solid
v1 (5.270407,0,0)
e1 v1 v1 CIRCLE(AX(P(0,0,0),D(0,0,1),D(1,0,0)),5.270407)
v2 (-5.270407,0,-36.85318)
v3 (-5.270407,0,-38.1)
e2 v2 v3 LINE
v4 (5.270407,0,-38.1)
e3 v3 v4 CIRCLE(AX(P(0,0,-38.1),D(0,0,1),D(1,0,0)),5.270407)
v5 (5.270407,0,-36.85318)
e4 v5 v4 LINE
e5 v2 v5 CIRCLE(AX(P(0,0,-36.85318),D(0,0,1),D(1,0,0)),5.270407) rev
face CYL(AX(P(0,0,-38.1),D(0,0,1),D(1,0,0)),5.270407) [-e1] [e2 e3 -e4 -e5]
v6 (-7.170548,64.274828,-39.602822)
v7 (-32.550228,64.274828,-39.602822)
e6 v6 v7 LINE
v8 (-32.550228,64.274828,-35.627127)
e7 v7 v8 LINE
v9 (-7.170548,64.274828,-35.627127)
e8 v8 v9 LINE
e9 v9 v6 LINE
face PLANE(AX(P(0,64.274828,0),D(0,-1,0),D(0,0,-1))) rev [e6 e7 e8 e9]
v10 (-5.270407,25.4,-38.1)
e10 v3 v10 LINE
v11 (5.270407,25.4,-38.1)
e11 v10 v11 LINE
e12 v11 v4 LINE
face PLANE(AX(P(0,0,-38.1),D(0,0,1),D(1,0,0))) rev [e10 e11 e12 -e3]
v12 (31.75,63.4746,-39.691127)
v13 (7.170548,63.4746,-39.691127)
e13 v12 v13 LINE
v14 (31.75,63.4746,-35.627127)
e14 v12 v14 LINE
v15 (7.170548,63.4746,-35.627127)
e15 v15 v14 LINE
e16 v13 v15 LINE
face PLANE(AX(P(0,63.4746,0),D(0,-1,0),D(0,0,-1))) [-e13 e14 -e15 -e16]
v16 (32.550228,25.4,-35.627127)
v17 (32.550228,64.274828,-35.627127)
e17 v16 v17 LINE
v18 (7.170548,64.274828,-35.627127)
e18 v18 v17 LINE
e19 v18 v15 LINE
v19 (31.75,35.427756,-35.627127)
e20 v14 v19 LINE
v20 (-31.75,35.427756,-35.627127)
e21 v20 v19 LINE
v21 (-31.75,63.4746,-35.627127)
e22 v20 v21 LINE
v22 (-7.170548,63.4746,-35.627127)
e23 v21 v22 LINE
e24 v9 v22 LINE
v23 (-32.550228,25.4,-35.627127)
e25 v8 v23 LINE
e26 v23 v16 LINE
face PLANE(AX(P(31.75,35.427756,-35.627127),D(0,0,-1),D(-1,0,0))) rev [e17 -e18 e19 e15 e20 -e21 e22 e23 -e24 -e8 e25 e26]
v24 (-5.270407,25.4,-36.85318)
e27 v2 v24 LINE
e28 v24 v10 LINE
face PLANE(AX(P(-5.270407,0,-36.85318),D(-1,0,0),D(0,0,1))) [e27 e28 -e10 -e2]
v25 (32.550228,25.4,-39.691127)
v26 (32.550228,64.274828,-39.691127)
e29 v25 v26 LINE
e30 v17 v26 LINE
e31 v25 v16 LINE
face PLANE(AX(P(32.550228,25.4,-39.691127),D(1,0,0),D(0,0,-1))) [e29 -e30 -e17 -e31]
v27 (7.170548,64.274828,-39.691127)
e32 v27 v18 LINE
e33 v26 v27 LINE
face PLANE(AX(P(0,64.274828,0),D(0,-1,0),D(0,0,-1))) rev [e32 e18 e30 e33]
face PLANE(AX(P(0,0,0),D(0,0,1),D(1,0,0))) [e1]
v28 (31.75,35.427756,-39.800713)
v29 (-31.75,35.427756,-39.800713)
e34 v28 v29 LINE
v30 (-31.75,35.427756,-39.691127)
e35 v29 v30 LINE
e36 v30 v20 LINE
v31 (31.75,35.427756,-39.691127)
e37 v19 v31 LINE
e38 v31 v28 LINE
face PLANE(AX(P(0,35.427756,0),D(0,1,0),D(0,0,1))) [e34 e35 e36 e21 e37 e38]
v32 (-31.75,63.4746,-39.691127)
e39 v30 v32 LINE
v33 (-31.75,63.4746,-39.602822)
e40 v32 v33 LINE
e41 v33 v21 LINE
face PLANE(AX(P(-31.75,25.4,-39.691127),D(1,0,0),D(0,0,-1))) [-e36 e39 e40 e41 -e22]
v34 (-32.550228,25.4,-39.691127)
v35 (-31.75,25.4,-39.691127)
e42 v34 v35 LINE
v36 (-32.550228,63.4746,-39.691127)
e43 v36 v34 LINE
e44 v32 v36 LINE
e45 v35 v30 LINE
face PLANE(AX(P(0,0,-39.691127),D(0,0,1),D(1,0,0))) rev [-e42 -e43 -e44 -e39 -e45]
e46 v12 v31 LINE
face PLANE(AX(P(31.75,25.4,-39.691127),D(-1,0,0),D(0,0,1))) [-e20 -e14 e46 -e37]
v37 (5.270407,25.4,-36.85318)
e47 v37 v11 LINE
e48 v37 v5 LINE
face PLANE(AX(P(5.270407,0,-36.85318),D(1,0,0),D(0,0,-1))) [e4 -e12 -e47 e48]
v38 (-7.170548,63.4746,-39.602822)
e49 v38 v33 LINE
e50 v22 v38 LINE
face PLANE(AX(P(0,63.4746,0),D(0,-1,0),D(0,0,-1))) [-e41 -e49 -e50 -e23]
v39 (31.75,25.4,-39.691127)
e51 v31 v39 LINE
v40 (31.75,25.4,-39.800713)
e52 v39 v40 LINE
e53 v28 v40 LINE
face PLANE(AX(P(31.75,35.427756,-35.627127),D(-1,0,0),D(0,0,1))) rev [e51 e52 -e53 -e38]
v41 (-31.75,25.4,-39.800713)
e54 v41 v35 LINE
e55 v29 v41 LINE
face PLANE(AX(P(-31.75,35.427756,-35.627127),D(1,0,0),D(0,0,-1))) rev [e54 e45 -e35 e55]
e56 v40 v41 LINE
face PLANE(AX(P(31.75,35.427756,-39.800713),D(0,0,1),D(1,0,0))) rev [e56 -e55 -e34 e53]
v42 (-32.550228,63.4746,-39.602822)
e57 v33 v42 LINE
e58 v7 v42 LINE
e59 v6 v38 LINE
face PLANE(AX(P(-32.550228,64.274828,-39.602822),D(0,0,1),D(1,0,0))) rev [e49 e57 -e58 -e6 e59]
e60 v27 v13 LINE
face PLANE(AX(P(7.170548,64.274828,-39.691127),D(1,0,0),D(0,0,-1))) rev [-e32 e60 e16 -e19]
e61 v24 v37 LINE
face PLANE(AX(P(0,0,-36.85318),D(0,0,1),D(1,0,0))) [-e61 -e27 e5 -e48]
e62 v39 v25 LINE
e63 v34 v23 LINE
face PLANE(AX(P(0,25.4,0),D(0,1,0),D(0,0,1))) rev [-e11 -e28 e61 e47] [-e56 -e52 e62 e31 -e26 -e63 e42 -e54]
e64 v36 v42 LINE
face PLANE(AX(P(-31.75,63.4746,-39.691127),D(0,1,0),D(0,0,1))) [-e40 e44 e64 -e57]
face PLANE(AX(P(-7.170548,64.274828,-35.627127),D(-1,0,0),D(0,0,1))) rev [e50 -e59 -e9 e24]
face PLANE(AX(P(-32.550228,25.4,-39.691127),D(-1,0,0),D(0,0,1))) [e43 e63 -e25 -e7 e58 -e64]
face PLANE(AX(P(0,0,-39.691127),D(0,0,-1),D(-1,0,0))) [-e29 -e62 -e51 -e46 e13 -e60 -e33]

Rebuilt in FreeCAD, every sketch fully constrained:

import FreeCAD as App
import Part
import Sketcher
from FreeCAD import Vector
Q = App.Units.Quantity

doc = App.newDocument("Part")
body = doc.addObject("PartDesign::Body", "Body")

sketch1 = doc.addObject("Sketcher::SketchObject", "Sketch")
body.addObject(sketch1)
sketch1.AttachmentSupport = (doc.XY_Plane, [""])
sketch1.MapMode = "FlatFace"
sketch1.addGeometry(Part.Circle(Vector(0, 0, 0), Vector(0, 0, 1), 5.270407), False)
sketch1.addConstraint(Sketcher.Constraint("Coincident", 0, 3, -1, 1))
sketch1.addConstraint(Sketcher.Constraint("Diameter", 0, 10.540815))
pad1 = doc.addObject("PartDesign::Pad", "Pad")
body.addObject(pad1)
pad1.Profile = sketch1
pad1.Length = Q("1.5 in")
pad1.Reversed = True

sketch2 = doc.addObject("Sketcher::SketchObject", "Sketch001")
body.addObject(sketch2)
sketch2.AttachmentSupport = (doc.XY_Plane, [""])
sketch2.MapMode = "FlatFace"
sketch2.AttachmentOffset = App.Placement(Vector(0, 0, -1.5 * 25.4), App.Rotation())
sketch2.addGeometry(Part.LineSegment(Vector(5.270407, 25.4, 0), Vector(5.270407, 0, 0)), False)
sketch2.addGeometry(Part.LineSegment(Vector(5.270407, 0, 0), Vector(-5.270407, 0, 0)), False)
sketch2.addGeometry(Part.LineSegment(Vector(-5.270407, 0, 0), Vector(-5.270407, 25.4, 0)), False)
sketch2.addGeometry(Part.LineSegment(Vector(-5.270407, 25.4, 0), Vector(5.270407, 25.4, 0)), False)
sketch2.addConstraint(Sketcher.Constraint("Coincident", 0, 2, 1, 1))
sketch2.addConstraint(Sketcher.Constraint("Coincident", 1, 2, 2, 1))
sketch2.addConstraint(Sketcher.Constraint("Coincident", 2, 2, 3, 1))
sketch2.addConstraint(Sketcher.Constraint("Coincident", 3, 2, 0, 1))
sketch2.addConstraint(Sketcher.Constraint("Vertical", 0))
sketch2.addConstraint(Sketcher.Constraint("Horizontal", 1))
sketch2.addConstraint(Sketcher.Constraint("Vertical", 2))
sketch2.addConstraint(Sketcher.Constraint("Horizontal", 3))
sketch2.addConstraint(Sketcher.Constraint("Symmetric", 0, 2, 1, 2, -1, 1))
sketch2.addConstraint(Sketcher.Constraint("DistanceY", 0, 2, 0, 1, Q("1 in")))
sketch2.addConstraint(Sketcher.Constraint("DistanceX", 1, 2, 1, 1, 10.540815))
pad2 = doc.addObject("PartDesign::Pad", "Pad001")
body.addObject(pad2)
pad2.Profile = sketch2
pad2.Length = 1.24682

sketch3 = doc.addObject("Sketcher::SketchObject", "Sketch002")
body.addObject(sketch3)
sketch3.AttachmentSupport = (doc.XZ_Plane, [""])
sketch3.MapMode = "FlatFace"
sketch3.AttachmentOffset = App.Placement(Vector(0, 0, -1 * 25.4), App.Rotation())
sketch3.addGeometry(Part.LineSegment(Vector(-31.75, -39.800713, 0), Vector(-31.75, -35.627127, 0)), False)
sketch3.addGeometry(Part.LineSegment(Vector(-31.75, -35.627127, 0), Vector(31.75, -35.627127, 0)), False)
sketch3.addGeometry(Part.LineSegment(Vector(31.75, -35.627127, 0), Vector(31.75, -39.800713, 0)), False)
sketch3.addGeometry(Part.LineSegment(Vector(31.75, -39.800713, 0), Vector(-31.75, -39.800713, 0)), False)
sketch3.addConstraint(Sketcher.Constraint("Coincident", 0, 2, 1, 1))
sketch3.addConstraint(Sketcher.Constraint("Coincident", 1, 2, 2, 1))
sketch3.addConstraint(Sketcher.Constraint("Coincident", 2, 2, 3, 1))
sketch3.addConstraint(Sketcher.Constraint("Coincident", 3, 2, 0, 1))
sketch3.addConstraint(Sketcher.Constraint("Vertical", 0))
sketch3.addConstraint(Sketcher.Constraint("Horizontal", 1))
sketch3.addConstraint(Sketcher.Constraint("Vertical", 2))
sketch3.addConstraint(Sketcher.Constraint("Horizontal", 3))
sketch3.addConstraint(Sketcher.Constraint("DistanceX", 1, 1, 1, 2, Q("2.5 in")))
sketch3.addConstraint(Sketcher.Constraint("DistanceX", 0, 2, -1, 1, Q("1.25 in")))
sketch3.addConstraint(Sketcher.Constraint("DistanceY", 0, 1, 0, 2, 4.173586))
sketch3.addConstraint(Sketcher.Constraint("DistanceY", 0, 2, -1, 1, 35.627127))
pad3 = doc.addObject("PartDesign::Pad", "Pad002")
body.addObject(pad3)
pad3.Profile = sketch3
pad3.Length = 10.027756
pad3.Reversed = True

sketch4 = doc.addObject("Sketcher::SketchObject", "Sketch003")
body.addObject(sketch4)
sketch4.AttachmentSupport = (doc.XY_Plane, [""])
sketch4.MapMode = "FlatFace"
sketch4.AttachmentOffset = App.Placement(Vector(0, 0, -35.627127), App.Rotation())
sketch4.addGeometry(Part.LineSegment(Vector(-32.550228, 63.4746, 0), Vector(-32.550228, 25.4, 0)), False)
sketch4.addGeometry(Part.LineSegment(Vector(-32.550228, 25.4, 0), Vector(-31.75, 25.4, 0)), False)
sketch4.addGeometry(Part.LineSegment(Vector(-31.75, 25.4, 0), Vector(-31.75, 63.4746, 0)), False)
sketch4.addGeometry(Part.LineSegment(Vector(-31.75, 63.4746, 0), Vector(-32.550228, 63.4746, 0)), False)
sketch4.addGeometry(Part.LineSegment(Vector(31.75, 63.4746, 0), Vector(31.75, 25.4, 0)), False)
sketch4.addGeometry(Part.LineSegment(Vector(31.75, 25.4, 0), Vector(32.550228, 25.4, 0)), False)
sketch4.addGeometry(Part.LineSegment(Vector(32.550228, 25.4, 0), Vector(32.550228, 63.4746, 0)), False)
sketch4.addGeometry(Part.LineSegment(Vector(32.550228, 63.4746, 0), Vector(31.75, 63.4746, 0)), False)
sketch4.addConstraint(Sketcher.Constraint("Coincident", 0, 2, 1, 1))
sketch4.addConstraint(Sketcher.Constraint("Coincident", 1, 2, 2, 1))
sketch4.addConstraint(Sketcher.Constraint("Coincident", 2, 2, 3, 1))
sketch4.addConstraint(Sketcher.Constraint("Coincident", 3, 2, 0, 1))
sketch4.addConstraint(Sketcher.Constraint("Coincident", 4, 2, 5, 1))
sketch4.addConstraint(Sketcher.Constraint("Coincident", 5, 2, 6, 1))
sketch4.addConstraint(Sketcher.Constraint("Coincident", 6, 2, 7, 1))
sketch4.addConstraint(Sketcher.Constraint("Coincident", 7, 2, 4, 1))
sketch4.addConstraint(Sketcher.Constraint("Vertical", 0))
sketch4.addConstraint(Sketcher.Constraint("Horizontal", 1))
sketch4.addConstraint(Sketcher.Constraint("Vertical", 2))
sketch4.addConstraint(Sketcher.Constraint("Horizontal", 3))
sketch4.addConstraint(Sketcher.Constraint("Vertical", 4))
sketch4.addConstraint(Sketcher.Constraint("Horizontal", 5))
sketch4.addConstraint(Sketcher.Constraint("Vertical", 6))
sketch4.addConstraint(Sketcher.Constraint("Horizontal", 7))
sketch4.addConstraint(Sketcher.Constraint("Symmetric", 1, 2, 4, 2, -2))
sketch4.addConstraint(Sketcher.Constraint("Symmetric", 3, 2, 6, 2, -2))
sketch4.addConstraint(Sketcher.Constraint("DistanceY", -1, 1, 0, 2, Q("1 in")))
sketch4.addConstraint(Sketcher.Constraint("DistanceX", 1, 2, 4, 2, Q("2.5 in")))
sketch4.addConstraint(Sketcher.Constraint("DistanceY", 0, 2, 0, 1, Q("1.499 in")))
sketch4.addConstraint(Sketcher.Constraint("DistanceX", 1, 1, 1, 2, 0.800228))
pad4 = doc.addObject("PartDesign::Pad", "Pad003")
body.addObject(pad4)
pad4.Profile = sketch4
pad4.Length = Q("0.16 in")
pad4.Reversed = True

sketch5 = doc.addObject("Sketcher::SketchObject", "Sketch004")
body.addObject(sketch5)
sketch5.AttachmentSupport = (doc.XZ_Plane, [""])
sketch5.MapMode = "FlatFace"
sketch5.AttachmentOffset = App.Placement(Vector(0, 0, -2.499 * 25.4), App.Rotation())
sketch5.addGeometry(Part.LineSegment(Vector(-32.550228, -39.602822, 0), Vector(-32.550228, -35.627127, 0)), False)
sketch5.addGeometry(Part.LineSegment(Vector(-32.550228, -35.627127, 0), Vector(-7.170548, -35.627127, 0)), False)
sketch5.addGeometry(Part.LineSegment(Vector(-7.170548, -35.627127, 0), Vector(-7.170548, -39.602822, 0)), False)
sketch5.addGeometry(Part.LineSegment(Vector(-7.170548, -39.602822, 0), Vector(-32.550228, -39.602822, 0)), False)
sketch5.addGeometry(Part.LineSegment(Vector(7.170548, -39.691127, 0), Vector(7.170548, -35.627127, 0)), False)
sketch5.addGeometry(Part.LineSegment(Vector(7.170548, -35.627127, 0), Vector(32.550228, -35.627127, 0)), False)
sketch5.addGeometry(Part.LineSegment(Vector(32.550228, -35.627127, 0), Vector(32.550228, -39.691127, 0)), False)
sketch5.addGeometry(Part.LineSegment(Vector(32.550228, -39.691127, 0), Vector(7.170548, -39.691127, 0)), False)
sketch5.addConstraint(Sketcher.Constraint("Coincident", 0, 2, 1, 1))
sketch5.addConstraint(Sketcher.Constraint("Coincident", 1, 2, 2, 1))
sketch5.addConstraint(Sketcher.Constraint("Coincident", 2, 2, 3, 1))
sketch5.addConstraint(Sketcher.Constraint("Coincident", 3, 2, 0, 1))
sketch5.addConstraint(Sketcher.Constraint("Coincident", 4, 2, 5, 1))
sketch5.addConstraint(Sketcher.Constraint("Coincident", 5, 2, 6, 1))
sketch5.addConstraint(Sketcher.Constraint("Coincident", 6, 2, 7, 1))
sketch5.addConstraint(Sketcher.Constraint("Coincident", 7, 2, 4, 1))
sketch5.addConstraint(Sketcher.Constraint("Vertical", 0))
sketch5.addConstraint(Sketcher.Constraint("Horizontal", 1))
sketch5.addConstraint(Sketcher.Constraint("Vertical", 2))
sketch5.addConstraint(Sketcher.Constraint("Horizontal", 3))
sketch5.addConstraint(Sketcher.Constraint("Vertical", 4))
sketch5.addConstraint(Sketcher.Constraint("Horizontal", 5))
sketch5.addConstraint(Sketcher.Constraint("Vertical", 6))
sketch5.addConstraint(Sketcher.Constraint("Horizontal", 7))
sketch5.addConstraint(Sketcher.Constraint("Symmetric", 1, 2, 4, 2, -2))
sketch5.addConstraint(Sketcher.Constraint("Equal", 3, 5))
sketch5.addConstraint(Sketcher.Constraint("DistanceY", 4, 1, 4, 2, Q("0.16 in")))
sketch5.addConstraint(Sketcher.Constraint("DistanceX", 1, 1, 1, 2, Q("0.9992 in")))
sketch5.addConstraint(Sketcher.Constraint("DistanceY", 0, 1, 0, 2, 3.975695))
sketch5.addConstraint(Sketcher.Constraint("DistanceX", 0, 2, -1, 1, 32.550228))
sketch5.addConstraint(Sketcher.Constraint("DistanceY", 0, 2, -1, 1, 35.627127))
pad5 = doc.addObject("PartDesign::Pad", "Pad004")
body.addObject(pad5)
pad5.Profile = sketch5
pad5.Length = 0.800228
pad5.Reversed = True

doc.recompute()
